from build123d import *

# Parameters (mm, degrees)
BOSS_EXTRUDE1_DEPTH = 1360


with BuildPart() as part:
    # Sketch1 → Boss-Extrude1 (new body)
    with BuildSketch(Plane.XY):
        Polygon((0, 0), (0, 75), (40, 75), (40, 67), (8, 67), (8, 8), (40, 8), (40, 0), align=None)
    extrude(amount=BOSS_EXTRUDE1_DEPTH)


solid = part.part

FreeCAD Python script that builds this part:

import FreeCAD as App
import Part
import Sketcher
from FreeCAD import Vector
Q = App.Units.Quantity

doc = App.newDocument("Part")
body = doc.addObject("PartDesign::Body", "Body")

# Sketch on XY plane
sketch1 = doc.addObject("Sketcher::SketchObject", "Sketch")
body.addObject(sketch1)
sketch1.AttachmentSupport = (doc.XY_Plane, [""])
sketch1.MapMode = "FlatFace"
sketch1.addGeometry([
    Part.LineSegment(Vector(0, 75, 0), Vector(0, 0, 0)),  # 0
    Part.LineSegment(Vector(0, 0, 0), Vector(40, 0, 0)),  # 1
    Part.LineSegment(Vector(40, 0, 0), Vector(40, 8, 0)),  # 2
    Part.LineSegment(Vector(40, 8, 0), Vector(8, 8, 0)),  # 3
    Part.LineSegment(Vector(8, 8, 0), Vector(8, 67, 0)),  # 4
    Part.LineSegment(Vector(8, 67, 0), Vector(40, 67, 0)),  # 5
    Part.LineSegment(Vector(40, 67, 0), Vector(40, 75, 0)),  # 6
    Part.LineSegment(Vector(40, 75, 0), Vector(0, 75, 0)),  # 7
], False)
sketch1.addConstraint([
    Sketcher.Constraint("Coincident", 0, 2, 1, 1),
    Sketcher.Constraint("Coincident", 1, 2, 2, 1),
    Sketcher.Constraint("Coincident", 2, 2, 3, 1),
    Sketcher.Constraint("Coincident", 3, 2, 4, 1),
    Sketcher.Constraint("Coincident", 4, 2, 5, 1),
    Sketcher.Constraint("Coincident", 5, 2, 6, 1),
    Sketcher.Constraint("Coincident", 6, 2, 7, 1),
    Sketcher.Constraint("Coincident", 7, 2, 0, 1),
    Sketcher.Constraint("Vertical", 0),
    Sketcher.Constraint("Horizontal", 1),
    Sketcher.Constraint("Vertical", 2),
    Sketcher.Constraint("Horizontal", 3),
    Sketcher.Constraint("Vertical", 4),
    Sketcher.Constraint("Horizontal", 5),
    Sketcher.Constraint("Vertical", 6),
    Sketcher.Constraint("Horizontal", 7),
    Sketcher.Constraint("Coincident", 0, 2, -1, 1),
    Sketcher.Constraint("Vertical", 2, 2, 5, 2),
    Sketcher.Constraint("Equal", 2, 6),
    Sketcher.Constraint("DistanceX", 1, 1, 1, 2, Q("40 mm")),
    Sketcher.Constraint("DistanceX", 3, 2, 3, 1, Q("32 mm")),
    Sketcher.Constraint("DistanceY", 0, 2, 0, 1, Q("75 mm")),
    Sketcher.Constraint("DistanceY", 2, 1, 2, 2, Q("8 mm")),
])
pad1 = doc.addObject("PartDesign::Pad", "Pad")
body.addObject(pad1)
pad1.Profile = sketch1
pad1.Length = 1360

doc.recompute()
